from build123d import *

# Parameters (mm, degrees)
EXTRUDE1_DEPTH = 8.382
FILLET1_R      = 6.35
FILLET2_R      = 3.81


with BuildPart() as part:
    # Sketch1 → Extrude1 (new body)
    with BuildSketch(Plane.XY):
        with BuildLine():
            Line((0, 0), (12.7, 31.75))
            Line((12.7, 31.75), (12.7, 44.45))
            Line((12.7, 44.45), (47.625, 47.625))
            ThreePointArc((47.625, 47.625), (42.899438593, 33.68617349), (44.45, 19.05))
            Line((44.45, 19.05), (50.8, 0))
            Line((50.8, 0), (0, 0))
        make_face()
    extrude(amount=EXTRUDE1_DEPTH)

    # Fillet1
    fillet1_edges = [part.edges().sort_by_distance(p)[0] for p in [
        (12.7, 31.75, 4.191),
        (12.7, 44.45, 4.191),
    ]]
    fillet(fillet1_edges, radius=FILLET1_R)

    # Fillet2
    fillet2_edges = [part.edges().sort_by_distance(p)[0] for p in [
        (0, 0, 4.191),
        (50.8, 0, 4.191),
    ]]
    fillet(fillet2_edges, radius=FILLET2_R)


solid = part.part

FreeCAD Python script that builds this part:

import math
import FreeCAD as App
import Part
import Sketcher
from FreeCAD import Vector
Q = App.Units.Quantity


def edges_at(feature, points):
    """Names of the edges that pass closest to the given points."""
    edges = feature.Shape.Edges
    near = lambda p: min(range(len(edges)), key=lambda i: edges[i].distToShape(Part.Vertex(*p))[0])
    return sorted({f"Edge{near(p) + 1}" for p in points})

doc = App.newDocument("Part")
body = doc.addObject("PartDesign::Body", "Body")

# Sketch on XY plane
sketch1 = doc.addObject("Sketcher::SketchObject", "Sketch")
body.addObject(sketch1)
sketch1.AttachmentSupport = (doc.XY_Plane, [""])
sketch1.MapMode = "FlatFace"
sketch1.addGeometry([
    Part.LineSegment(Vector(13, 32, 0), Vector(0, 0, 0)),  # 0
    Part.LineSegment(Vector(0, 0, 0), Vector(51, 0, 0)),  # 1
    Part.LineSegment(Vector(51, 0, 0), Vector(44, 19, 0)),  # 2
    Part.ArcOfCircle(Part.Circle(Vector(77, 30, 0), Vector(0, 0, 1), 34), math.radians(149), math.radians(198)),  # 3
    Part.LineSegment(Vector(48, 48, 0), Vector(13, 44, 0)),  # 4
    Part.LineSegment(Vector(13, 44, 0), Vector(13, 32, 0)),  # 5
], False)
sketch1.addConstraint([
    Sketcher.Constraint("Coincident", 0, 2, 1, 1),
    Sketcher.Constraint("Coincident", 1, 2, 2, 1),
    Sketcher.Constraint("Tangent", 2, 2, 3, 2),
    Sketcher.Constraint("Coincident", 3, 1, 4, 1),
    Sketcher.Constraint("Coincident", 4, 2, 5, 1),
    Sketcher.Constraint("Coincident", 5, 2, 0, 1),
    Sketcher.Constraint("Horizontal", 1),
    Sketcher.Constraint("Vertical", 5),
    Sketcher.Constraint("Coincident", 0, 2, -1, 1),
    Sketcher.Constraint("DistanceX", 1, 1, 1, 2, Q("2 in")),
    Sketcher.Constraint("DistanceY", 5, 2, 5, 1, Q("0.5 in")),
    Sketcher.Constraint("DistanceY", 2, 2, 4, 2, Q("1 in")),
    Sketcher.Constraint("DistanceX", -1, 1, 4, 2, Q("0.5 in")),
    Sketcher.Constraint("DistanceX", -1, 1, 2, 2, Q("1.75 in")),
    Sketcher.Constraint("DistanceY", -1, 1, 2, 2, Q("0.75 in")),
    Sketcher.Constraint("DistanceX", -1, 1, 3, 3, Q("3.03125 in")),
    Sketcher.Constraint("DistanceX", -1, 1, 3, 1, Q("1.875 in")),
])
pad1 = doc.addObject("PartDesign::Pad", "Pad")
body.addObject(pad1)
pad1.Profile = sketch1
pad1.Length = Q("0.33 in")
doc.recompute()

fillet = doc.addObject("PartDesign::Fillet", "Fillet")
body.addObject(fillet)
fillet.Base = (pad1, edges_at(pad1, [(12.7, 31.75, 4.191), (12.7, 44.45, 4.191)]))
fillet.Radius = Q("0.25 in")
doc.recompute()

fillet2 = doc.addObject("PartDesign::Fillet", "Fillet001")
body.addObject(fillet2)
fillet2.Base = (fillet, edges_at(fillet, [(0, 0, 4.191), (50.8, 0, 4.191)]))
fillet2.Radius = Q("0.15 in")

doc.recompute()
